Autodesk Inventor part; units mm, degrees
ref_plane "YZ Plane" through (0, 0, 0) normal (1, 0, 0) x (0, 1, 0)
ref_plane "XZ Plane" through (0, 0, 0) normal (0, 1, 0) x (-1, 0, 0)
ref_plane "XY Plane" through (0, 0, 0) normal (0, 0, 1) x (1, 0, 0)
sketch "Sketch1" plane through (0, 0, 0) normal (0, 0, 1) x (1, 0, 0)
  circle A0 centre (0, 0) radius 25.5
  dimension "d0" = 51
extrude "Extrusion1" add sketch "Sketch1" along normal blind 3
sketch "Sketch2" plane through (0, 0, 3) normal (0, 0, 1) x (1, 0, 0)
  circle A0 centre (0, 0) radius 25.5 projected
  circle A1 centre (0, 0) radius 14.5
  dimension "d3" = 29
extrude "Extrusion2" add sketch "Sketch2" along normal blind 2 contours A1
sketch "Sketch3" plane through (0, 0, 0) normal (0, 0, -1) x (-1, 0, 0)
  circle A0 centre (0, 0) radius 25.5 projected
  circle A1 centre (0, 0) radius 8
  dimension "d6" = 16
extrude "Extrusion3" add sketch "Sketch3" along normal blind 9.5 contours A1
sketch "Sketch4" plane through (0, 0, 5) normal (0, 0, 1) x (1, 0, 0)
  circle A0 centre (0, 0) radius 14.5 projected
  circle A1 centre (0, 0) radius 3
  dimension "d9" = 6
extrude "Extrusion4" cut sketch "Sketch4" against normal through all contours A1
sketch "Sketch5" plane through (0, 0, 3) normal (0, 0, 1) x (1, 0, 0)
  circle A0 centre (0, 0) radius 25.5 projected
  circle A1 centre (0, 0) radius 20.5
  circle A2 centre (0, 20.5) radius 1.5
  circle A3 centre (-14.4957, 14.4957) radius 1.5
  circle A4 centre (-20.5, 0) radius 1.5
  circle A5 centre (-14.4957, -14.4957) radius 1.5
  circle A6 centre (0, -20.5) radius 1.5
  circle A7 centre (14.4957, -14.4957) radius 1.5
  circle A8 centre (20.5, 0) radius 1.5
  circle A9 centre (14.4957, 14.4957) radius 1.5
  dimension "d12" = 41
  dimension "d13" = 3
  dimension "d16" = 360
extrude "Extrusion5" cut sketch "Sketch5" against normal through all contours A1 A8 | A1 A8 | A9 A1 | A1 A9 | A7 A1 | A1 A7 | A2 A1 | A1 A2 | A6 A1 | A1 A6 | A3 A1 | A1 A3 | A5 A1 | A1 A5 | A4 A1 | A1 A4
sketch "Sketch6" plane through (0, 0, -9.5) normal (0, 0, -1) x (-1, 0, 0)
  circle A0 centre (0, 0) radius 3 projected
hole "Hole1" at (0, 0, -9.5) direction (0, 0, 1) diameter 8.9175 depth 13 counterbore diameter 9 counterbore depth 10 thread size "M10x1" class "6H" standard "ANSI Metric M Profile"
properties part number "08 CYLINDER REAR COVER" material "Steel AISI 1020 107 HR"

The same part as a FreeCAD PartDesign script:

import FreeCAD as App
import Part
import Sketcher

V = App.Vector
Q = App.Units.Quantity

doc = App.newDocument("Part")
body = doc.addObject("PartDesign::Body", "Body")

sketch1 = body.newObject("Sketcher::SketchObject", "Sketch")
sketch1.AttachmentSupport = (doc.getObject("XY_Plane"), [""])
sketch1.MapMode = "FlatFace"
sketch1.addGeometry(Part.Circle(V(0, 0, 0), V(0, 0, 1), 26), False)
sketch1.addConstraint([
    Sketcher.Constraint("Coincident", 0, 3, -1, 1),
    Sketcher.Constraint("Diameter", 0, Q("51 mm")),
])
pad1 = body.newObject("PartDesign::Pad", "Pad")
pad1.Profile = sketch1
pad1.Length = 3

sketch2 = body.newObject("Sketcher::SketchObject", "Sketch001")
sketch2.AttachmentSupport = (doc.getObject("XY_Plane"), [""])
sketch2.MapMode = "FlatFace"
sketch2.AttachmentOffset = App.Placement(V(0, 0, 3), App.Rotation())
sketch2.addGeometry(Part.Circle(V(0, 0, 0), V(0, 0, 1), 14), False)
sketch2.addConstraint([
    Sketcher.Constraint("Coincident", 0, 3, -1, 1),
    Sketcher.Constraint("Diameter", 0, Q("29 mm")),
])
pad2 = body.newObject("PartDesign::Pad", "Pad001")
pad2.Profile = sketch2
pad2.Length = 2

sketch3 = body.newObject("Sketcher::SketchObject", "Sketch002")
sketch3.AttachmentSupport = (doc.getObject("XY_Plane"), [""])
sketch3.MapMode = "FlatFace"
sketch3.addGeometry(Part.Circle(V(0, 0, 0), V(0, 0, 1), 8), False)
sketch3.addConstraint([
    Sketcher.Constraint("Coincident", 0, 3, -1, 1),
    Sketcher.Constraint("Diameter", 0, Q("16 mm")),
])
pad3 = body.newObject("PartDesign::Pad", "Pad002")
pad3.Profile = sketch3
pad3.Length = 9.5
pad3.Reversed = True

sketch4 = body.newObject("Sketcher::SketchObject", "Sketch003")
sketch4.AttachmentSupport = (doc.getObject("XY_Plane"), [""])
sketch4.MapMode = "FlatFace"
sketch4.AttachmentOffset = App.Placement(V(0, 0, 5), App.Rotation())
sketch4.addGeometry(Part.Circle(V(0, 0, 0), V(0, 0, 1), 3), False)
sketch4.addConstraint([
    Sketcher.Constraint("Coincident", 0, 3, -1, 1),
    Sketcher.Constraint("Diameter", 0, Q("6 mm")),
])
pocket1 = body.newObject("PartDesign::Pocket", "Pocket")
pocket1.Profile = sketch4
pocket1.Type = "ThroughAll"

sketch5 = body.newObject("Sketcher::SketchObject", "Sketch004")
sketch5.AttachmentSupport = (doc.getObject("XY_Plane"), [""])
sketch5.MapMode = "FlatFace"
sketch5.AttachmentOffset = App.Placement(V(0, 0, 3), App.Rotation())
sketch5.addGeometry([
    Part.Circle(V(20.5, 0, 0), V(0, 0, 1), 1.5),
    Part.Circle(V(14.5, 14.5, 0), V(0, 0, 1), 1.5),
    Part.Circle(V(14.5, -14.5, 0), V(0, 0, 1), 1.5),
    Part.Circle(V(0, 20.5, 0), V(0, 0, 1), 1.5),
    Part.Circle(V(0, -20.5, 0), V(0, 0, 1), 1.5),
    Part.Circle(V(-14.5, 14.5, 0), V(0, 0, 1), 1.5),
    Part.Circle(V(-14.5, -14.5, 0), V(0, 0, 1), 1.5),
    Part.Circle(V(-20.5, 0, 0), V(0, 0, 1), 1.5),
], False)
sketch5.addConstraint([
    Sketcher.Constraint("Equal", 0, 1),
    Sketcher.Constraint("Equal", 1, 2),
    Sketcher.Constraint("Equal", 2, 3),
    Sketcher.Constraint("Equal", 3, 4),
    Sketcher.Constraint("Equal", 4, 5),
    Sketcher.Constraint("Equal", 5, 6),
    Sketcher.Constraint("Equal", 6, 7),
    Sketcher.Constraint("Symmetric", 3, 3, 4, 3, -1, 1),
    Sketcher.Constraint("Symmetric", 2, 3, 5, 3, -1, 1),
    Sketcher.Constraint("Symmetric", 1, 3, 6, 3, -1, 1),
    Sketcher.Constraint("Symmetric", 0, 3, 7, 3, -1, 1),
    Sketcher.Constraint("Symmetric", 1, 3, 5, 3, -2),
    Sketcher.Constraint("PointOnObject", 0, 3, -1),
    Sketcher.Constraint("PointOnObject", 3, 3, -2),
    Sketcher.Constraint("Diameter", 0, Q("3 mm")),
    Sketcher.Constraint("DistanceY", 4, 3, 3, 3, Q("41 mm")),
    Sketcher.Constraint("DistanceX", -1, 1, 0, 3, Q("20.5 mm")),
    Sketcher.Constraint("DistanceX", -1, 1, 1, 3, Q("14.4957 mm")),
    Sketcher.Constraint("DistanceY", -1, 1, 1, 3, Q("14.4957 mm")),
])
pocket2 = body.newObject("PartDesign::Pocket", "Pocket001")
pocket2.Profile = sketch5
pocket2.Type = "ThroughAll"

sketch6 = body.newObject("Sketcher::SketchObject", "Sketch005")
sketch6.AttachmentSupport = (doc.getObject("XY_Plane"), [""])
sketch6.MapMode = "FlatFace"
sketch6.AttachmentOffset = App.Placement(V(0, 0, -9.5), App.Rotation())
sketch6.addGeometry(Part.Circle(V(0, 0, 0), V(0, 0, 1), 4.5), False)
sketch6.addConstraint([
    Sketcher.Constraint("Coincident", 0, 3, -1, 1),
    Sketcher.Constraint("Diameter", 0, Q("8.9175 mm")),
])
doc.recompute()
hole = body.newObject("PartDesign::Hole", "Hole")
hole.Profile = sketch6
hole.ThreadType = "None"
hole.Diameter = 8.9175
hole.DepthType = "Dimension"
hole.Depth = 13
hole.DrillPoint = "Flat"
hole.HoleCutType = "Counterbore"
hole.HoleCutDiameter = 9
hole.HoleCutDepth = 10
hole.Reversed = True

doc.recompute()
